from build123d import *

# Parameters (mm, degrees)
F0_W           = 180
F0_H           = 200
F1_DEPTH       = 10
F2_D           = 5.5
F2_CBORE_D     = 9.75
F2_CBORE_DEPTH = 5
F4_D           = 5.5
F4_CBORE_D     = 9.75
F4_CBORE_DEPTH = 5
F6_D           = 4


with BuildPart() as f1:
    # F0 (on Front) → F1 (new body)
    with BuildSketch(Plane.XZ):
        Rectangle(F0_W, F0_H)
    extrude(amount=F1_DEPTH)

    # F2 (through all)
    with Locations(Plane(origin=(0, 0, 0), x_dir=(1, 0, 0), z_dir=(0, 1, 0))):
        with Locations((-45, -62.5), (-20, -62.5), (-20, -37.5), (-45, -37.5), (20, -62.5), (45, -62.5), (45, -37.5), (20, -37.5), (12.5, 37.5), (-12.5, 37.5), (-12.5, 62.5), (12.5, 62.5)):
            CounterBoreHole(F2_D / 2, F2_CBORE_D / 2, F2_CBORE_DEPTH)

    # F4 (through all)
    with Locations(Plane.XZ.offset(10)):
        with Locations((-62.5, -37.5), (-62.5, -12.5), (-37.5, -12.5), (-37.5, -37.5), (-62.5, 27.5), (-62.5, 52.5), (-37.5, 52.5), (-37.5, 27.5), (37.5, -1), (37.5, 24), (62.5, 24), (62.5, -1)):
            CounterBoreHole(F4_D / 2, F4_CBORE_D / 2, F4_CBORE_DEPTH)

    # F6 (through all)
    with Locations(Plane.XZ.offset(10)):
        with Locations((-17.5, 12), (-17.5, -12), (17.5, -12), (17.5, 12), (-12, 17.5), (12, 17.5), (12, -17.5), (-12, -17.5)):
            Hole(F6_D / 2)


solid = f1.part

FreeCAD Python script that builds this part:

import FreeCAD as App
import Part
import Sketcher
from FreeCAD import Vector

doc = App.newDocument("Part")
body = doc.addObject("PartDesign::Body", "Body")

# Sketch on XZ plane
sketch1 = doc.addObject("Sketcher::SketchObject", "Sketch")
body.addObject(sketch1)
sketch1.AttachmentSupport = (doc.XZ_Plane, [""])
sketch1.MapMode = "FlatFace"
sketch1.addGeometry(Part.LineSegment(Vector(-90, 100, 0), Vector(-90, -100, 0)), False)
sketch1.addGeometry(Part.LineSegment(Vector(-90, -100, 0), Vector(90, -100, 0)), False)
sketch1.addGeometry(Part.LineSegment(Vector(90, -100, 0), Vector(90, 100, 0)), False)
sketch1.addGeometry(Part.LineSegment(Vector(90, 100, 0), Vector(-90, 100, 0)), False)
sketch1.addConstraint(Sketcher.Constraint("Coincident", 0, 2, 1, 1))
sketch1.addConstraint(Sketcher.Constraint("Coincident", 1, 2, 2, 1))
sketch1.addConstraint(Sketcher.Constraint("Coincident", 2, 2, 3, 1))
sketch1.addConstraint(Sketcher.Constraint("Coincident", 3, 2, 0, 1))
sketch1.addConstraint(Sketcher.Constraint("Vertical", 0))
sketch1.addConstraint(Sketcher.Constraint("Horizontal", 1))
sketch1.addConstraint(Sketcher.Constraint("Vertical", 2))
sketch1.addConstraint(Sketcher.Constraint("Horizontal", 3))
sketch1.addConstraint(Sketcher.Constraint("Symmetric", 0, 2, 2, 2, -1, 1))
sketch1.addConstraint(Sketcher.Constraint("DistanceX", 1, 1, 1, 2, 180.0))
sketch1.addConstraint(Sketcher.Constraint("DistanceY", 0, 2, 0, 1, 200.0))
pad1 = doc.addObject("PartDesign::Pad", "Pad")
body.addObject(pad1)
pad1.Profile = sketch1
pad1.Length = 10

# Sketch on XZ plane
sketch2 = doc.addObject("Sketcher::SketchObject", "Sketch001")
body.addObject(sketch2)
sketch2.AttachmentSupport = (doc.XZ_Plane, [""])
sketch2.MapMode = "FlatFace"
sketch2.addGeometry(Part.Circle(Vector(-45, 62.5, 0), Vector(0, 0, 1), 2.8), False)
sketch2.addGeometry(Part.Circle(Vector(-20, 62.5, 0), Vector(0, 0, 1), 2.8), False)
sketch2.addGeometry(Part.Circle(Vector(-20, 37.5, 0), Vector(0, 0, 1), 2.8), False)
sketch2.addGeometry(Part.Circle(Vector(-45, 37.5, 0), Vector(0, 0, 1), 2.8), False)
sketch2.addGeometry(Part.Circle(Vector(20, 62.5, 0), Vector(0, 0, 1), 2.8), False)
sketch2.addGeometry(Part.Circle(Vector(45, 62.5, 0), Vector(0, 0, 1), 2.8), False)
sketch2.addGeometry(Part.Circle(Vector(45, 37.5, 0), Vector(0, 0, 1), 2.8), False)
sketch2.addGeometry(Part.Circle(Vector(20, 37.5, 0), Vector(0, 0, 1), 2.8), False)
sketch2.addGeometry(Part.Circle(Vector(12.5, -37.5, 0), Vector(0, 0, 1), 2.8), False)
sketch2.addGeometry(Part.Circle(Vector(-12.5, -37.5, 0), Vector(0, 0, 1), 2.8), False)
sketch2.addGeometry(Part.Circle(Vector(-12.5, -62.5, 0), Vector(0, 0, 1), 2.8), False)
sketch2.addGeometry(Part.Circle(Vector(12.5, -62.5, 0), Vector(0, 0, 1), 2.8), False)
sketch2.addConstraint(Sketcher.Constraint("Equal", 0, 1))
sketch2.addConstraint(Sketcher.Constraint("Equal", 1, 2))
sketch2.addConstraint(Sketcher.Constraint("Equal", 2, 3))
sketch2.addConstraint(Sketcher.Constraint("Equal", 3, 4))
sketch2.addConstraint(Sketcher.Constraint("Equal", 4, 5))
sketch2.addConstraint(Sketcher.Constraint("Equal", 5, 6))
sketch2.addConstraint(Sketcher.Constraint("Equal", 6, 7))
sketch2.addConstraint(Sketcher.Constraint("Equal", 7, 8))
sketch2.addConstraint(Sketcher.Constraint("Equal", 8, 9))
sketch2.addConstraint(Sketcher.Constraint("Equal", 9, 10))
sketch2.addConstraint(Sketcher.Constraint("Equal", 10, 11))
sketch2.addConstraint(Sketcher.Constraint("Symmetric", 1, 3, 4, 3, -2))
sketch2.addConstraint(Sketcher.Constraint("Symmetric", 0, 3, 5, 3, -2))
sketch2.addConstraint(Sketcher.Constraint("Symmetric", 3, 3, 6, 3, -2))
sketch2.addConstraint(Sketcher.Constraint("Symmetric", 2, 3, 7, 3, -2))
sketch2.addConstraint(Sketcher.Constraint("Symmetric", 8, 3, 9, 3, -2))
sketch2.addConstraint(Sketcher.Constraint("Symmetric", 10, 3, 11, 3, -2))
sketch2.addConstraint(Sketcher.Constraint("Horizontal", 0, 3, 1, 3))
sketch2.addConstraint(Sketcher.Constraint("Horizontal", 2, 3, 3, 3))
sketch2.addConstraint(Sketcher.Constraint("Vertical", 1, 3, 2, 3))
sketch2.addConstraint(Sketcher.Constraint("Vertical", 0, 3, 3, 3))
sketch2.addConstraint(Sketcher.Constraint("Vertical", 9, 3, 10, 3))
sketch2.addConstraint(Sketcher.Constraint("Diameter", 0, 5.5))
sketch2.addConstraint(Sketcher.Constraint("DistanceX", 0, 3, -1, 1, 45.0))
sketch2.addConstraint(Sketcher.Constraint("DistanceX", 1, 3, -1, 1, 20.0))
sketch2.addConstraint(Sketcher.Constraint("DistanceY", 2, 3, 1, 3, 25.0))
sketch2.addConstraint(Sketcher.Constraint("DistanceY", 8, 3, 7, 3, 75.0))
sketch2.addConstraint(Sketcher.Constraint("DistanceX", 9, 3, 8, 3, 25.0))
sketch2.addConstraint(Sketcher.Constraint("DistanceY", 10, 3, 9, 3, 25.0))
sketch2.addConstraint(Sketcher.Constraint("DistanceY", -1, 1, 0, 3, 62.5))
doc.recompute()
hole = doc.addObject("PartDesign::Hole", "Hole")
body.addObject(hole)
hole.Profile = sketch2
hole.ThreadType = "None"
hole.Diameter = 5.5
hole.DepthType = "ThroughAll"
hole.HoleCutType = "Counterbore"
hole.HoleCutDiameter = 9.75
hole.HoleCutDepth = 5
hole.Reversed = True

# Sketch on XZ plane
sketch3 = doc.addObject("Sketcher::SketchObject", "Sketch002")
body.addObject(sketch3)
sketch3.AttachmentSupport = (doc.XZ_Plane, [""])
sketch3.MapMode = "FlatFace"
sketch3.AttachmentOffset = App.Placement(Vector(0, 0, 10), App.Rotation())
sketch3.addGeometry(Part.Circle(Vector(-62.5, -37.5, 0), Vector(0, 0, 1), 2.8), False)
sketch3.addGeometry(Part.Circle(Vector(-62.5, -12.5, 0), Vector(0, 0, 1), 2.8), False)
sketch3.addGeometry(Part.Circle(Vector(-37.5, -12.5, 0), Vector(0, 0, 1), 2.8), False)
sketch3.addGeometry(Part.Circle(Vector(-37.5, -37.5, 0), Vector(0, 0, 1), 2.8), False)
sketch3.addGeometry(Part.Circle(Vector(-62.5, 27.5, 0), Vector(0, 0, 1), 2.8), False)
sketch3.addGeometry(Part.Circle(Vector(-62.5, 52.5, 0), Vector(0, 0, 1), 2.8), False)
sketch3.addGeometry(Part.Circle(Vector(-37.5, 52.5, 0), Vector(0, 0, 1), 2.8), False)
sketch3.addGeometry(Part.Circle(Vector(-37.5, 27.5, 0), Vector(0, 0, 1), 2.8), False)
sketch3.addGeometry(Part.Circle(Vector(37.5, -1, 0), Vector(0, 0, 1), 2.8), False)
sketch3.addGeometry(Part.Circle(Vector(37.5, 24, 0), Vector(0, 0, 1), 2.8), False)
sketch3.addGeometry(Part.Circle(Vector(62.5, 24, 0), Vector(0, 0, 1), 2.8), False)
sketch3.addGeometry(Part.Circle(Vector(62.5, -1, 0), Vector(0, 0, 1), 2.8), False)
sketch3.addConstraint(Sketcher.Constraint("Equal", 0, 1))
sketch3.addConstraint(Sketcher.Constraint("Equal", 1, 2))
sketch3.addConstraint(Sketcher.Constraint("Equal", 2, 3))
sketch3.addConstraint(Sketcher.Constraint("Equal", 3, 4))
sketch3.addConstraint(Sketcher.Constraint("Equal", 4, 5))
sketch3.addConstraint(Sketcher.Constraint("Equal", 5, 6))
sketch3.addConstraint(Sketcher.Constraint("Equal", 6, 7))
sketch3.addConstraint(Sketcher.Constraint("Equal", 7, 8))
sketch3.addConstraint(Sketcher.Constraint("Equal", 8, 9))
sketch3.addConstraint(Sketcher.Constraint("Equal", 9, 10))
sketch3.addConstraint(Sketcher.Constraint("Equal", 10, 11))
sketch3.addConstraint(Sketcher.Constraint("Horizontal", 1, 3, 2, 3))
sketch3.addConstraint(Sketcher.Constraint("Horizontal", 0, 3, 3, 3))
sketch3.addConstraint(Sketcher.Constraint("Horizontal", 5, 3, 6, 3))
sketch3.addConstraint(Sketcher.Constraint("Horizontal", 4, 3, 7, 3))
sketch3.addConstraint(Sketcher.Constraint("Horizontal", 9, 3, 10, 3))
sketch3.addConstraint(Sketcher.Constraint("Horizontal", 8, 3, 11, 3))
sketch3.addConstraint(Sketcher.Constraint("Vertical", 0, 3, 1, 3))
sketch3.addConstraint(Sketcher.Constraint("Vertical", 2, 3, 3, 3))
sketch3.addConstraint(Sketcher.Constraint("Vertical", 1, 3, 4, 3))
sketch3.addConstraint(Sketcher.Constraint("Vertical", 4, 3, 5, 3))
sketch3.addConstraint(Sketcher.Constraint("Vertical", 3, 3, 6, 3))
sketch3.addConstraint(Sketcher.Constraint("Vertical", 6, 3, 7, 3))
sketch3.addConstraint(Sketcher.Constraint("Vertical", 8, 3, 9, 3))
sketch3.addConstraint(Sketcher.Constraint("Vertical", 10, 3, 11, 3))
sketch3.addConstraint(Sketcher.Constraint("Diameter", 0, 5.5))
sketch3.addConstraint(Sketcher.Constraint("DistanceY", 8, 3, -1, 1, 1.0))
sketch3.addConstraint(Sketcher.Constraint("DistanceY", -1, 1, 9, 3, 24.0))
sketch3.addConstraint(Sketcher.Constraint("DistanceY", 0, 3, 1, 3, 25.0))
sketch3.addConstraint(Sketcher.Constraint("DistanceX", 1, 3, 2, 3, 25.0))
sketch3.addConstraint(Sketcher.Constraint("DistanceY", 1, 3, 4, 3, 40.0))
sketch3.addConstraint(Sketcher.Constraint("DistanceY", 4, 3, 5, 3, 25.0))
sketch3.addConstraint(Sketcher.Constraint("DistanceX", 2, 3, 8, 3, 75.0))
sketch3.addConstraint(Sketcher.Constraint("DistanceX", 9, 3, 10, 3, 25.0))
sketch3.addConstraint(Sketcher.Constraint("DistanceX", 0, 3, -1, 1, 62.5))
sketch3.addConstraint(Sketcher.Constraint("DistanceY", 0, 3, -1, 1, 37.5))
doc.recompute()
hole2 = doc.addObject("PartDesign::Hole", "Hole001")
body.addObject(hole2)
hole2.Profile = sketch3
hole2.ThreadType = "None"
hole2.Diameter = 5.5
hole2.DepthType = "ThroughAll"
hole2.HoleCutType = "Counterbore"
hole2.HoleCutDiameter = 9.75
hole2.HoleCutDepth = 5

# Sketch on XZ plane
sketch4 = doc.addObject("Sketcher::SketchObject", "Sketch003")
body.addObject(sketch4)
sketch4.AttachmentSupport = (doc.XZ_Plane, [""])
sketch4.MapMode = "FlatFace"
sketch4.AttachmentOffset = App.Placement(Vector(0, 0, 10), App.Rotation())
sketch4.addGeometry(Part.Circle(Vector(-17.5, 12, 0), Vector(0, 0, 1), 2), False)
sketch4.addGeometry(Part.Circle(Vector(-17.5, -12, 0), Vector(0, 0, 1), 2), False)
sketch4.addGeometry(Part.Circle(Vector(17.5, -12, 0), Vector(0, 0, 1), 2), False)
sketch4.addGeometry(Part.Circle(Vector(17.5, 12, 0), Vector(0, 0, 1), 2), False)
sketch4.addGeometry(Part.Circle(Vector(-12, 17.5, 0), Vector(0, 0, 1), 2), False)
sketch4.addGeometry(Part.Circle(Vector(12, 17.5, 0), Vector(0, 0, 1), 2), False)
sketch4.addGeometry(Part.Circle(Vector(12, -17.5, 0), Vector(0, 0, 1), 2), False)
sketch4.addGeometry(Part.Circle(Vector(-12, -17.5, 0), Vector(0, 0, 1), 2), False)
sketch4.addConstraint(Sketcher.Constraint("Equal", 0, 1))
sketch4.addConstraint(Sketcher.Constraint("Equal", 1, 2))
sketch4.addConstraint(Sketcher.Constraint("Equal", 2, 3))
sketch4.addConstraint(Sketcher.Constraint("Equal", 3, 4))
sketch4.addConstraint(Sketcher.Constraint("Equal", 4, 5))
sketch4.addConstraint(Sketcher.Constraint("Equal", 5, 6))
sketch4.addConstraint(Sketcher.Constraint("Equal", 6, 7))
sketch4.addConstraint(Sketcher.Constraint("Symmetric", 0, 3, 2, 3, -1, 1))
sketch4.addConstraint(Sketcher.Constraint("Symmetric", 1, 3, 3, 3, -1, 1))
sketch4.addConstraint(Sketcher.Constraint("Symmetric", 4, 3, 6, 3, -1, 1))
sketch4.addConstraint(Sketcher.Constraint("Symmetric", 5, 3, 7, 3, -1, 1))
sketch4.addConstraint(Sketcher.Constraint("Symmetric", 1, 3, 2, 3, -2))
sketch4.addConstraint(Sketcher.Constraint("Symmetric", 4, 3, 5, 3, -2))
sketch4.addConstraint(Sketcher.Constraint("Diameter", 0, 4.0))
sketch4.addConstraint(Sketcher.Constraint("DistanceY", -1, 1, 0, 3, 12.0))
sketch4.addConstraint(Sketcher.Constraint("DistanceX", 4, 3, -1, 1, 12.0))
sketch4.addConstraint(Sketcher.Constraint("DistanceX", 1, 3, 2, 3, 35.0))
sketch4.addConstraint(Sketcher.Constraint("DistanceY", 6, 3, 5, 3, 35.0))
doc.recompute()
hole3 = doc.addObject("PartDesign::Hole", "Hole002")
body.addObject(hole3)
hole3.Profile = sketch4
hole3.ThreadType = "None"
hole3.Diameter = 4
hole3.DepthType = "ThroughAll"

doc.recompute()
